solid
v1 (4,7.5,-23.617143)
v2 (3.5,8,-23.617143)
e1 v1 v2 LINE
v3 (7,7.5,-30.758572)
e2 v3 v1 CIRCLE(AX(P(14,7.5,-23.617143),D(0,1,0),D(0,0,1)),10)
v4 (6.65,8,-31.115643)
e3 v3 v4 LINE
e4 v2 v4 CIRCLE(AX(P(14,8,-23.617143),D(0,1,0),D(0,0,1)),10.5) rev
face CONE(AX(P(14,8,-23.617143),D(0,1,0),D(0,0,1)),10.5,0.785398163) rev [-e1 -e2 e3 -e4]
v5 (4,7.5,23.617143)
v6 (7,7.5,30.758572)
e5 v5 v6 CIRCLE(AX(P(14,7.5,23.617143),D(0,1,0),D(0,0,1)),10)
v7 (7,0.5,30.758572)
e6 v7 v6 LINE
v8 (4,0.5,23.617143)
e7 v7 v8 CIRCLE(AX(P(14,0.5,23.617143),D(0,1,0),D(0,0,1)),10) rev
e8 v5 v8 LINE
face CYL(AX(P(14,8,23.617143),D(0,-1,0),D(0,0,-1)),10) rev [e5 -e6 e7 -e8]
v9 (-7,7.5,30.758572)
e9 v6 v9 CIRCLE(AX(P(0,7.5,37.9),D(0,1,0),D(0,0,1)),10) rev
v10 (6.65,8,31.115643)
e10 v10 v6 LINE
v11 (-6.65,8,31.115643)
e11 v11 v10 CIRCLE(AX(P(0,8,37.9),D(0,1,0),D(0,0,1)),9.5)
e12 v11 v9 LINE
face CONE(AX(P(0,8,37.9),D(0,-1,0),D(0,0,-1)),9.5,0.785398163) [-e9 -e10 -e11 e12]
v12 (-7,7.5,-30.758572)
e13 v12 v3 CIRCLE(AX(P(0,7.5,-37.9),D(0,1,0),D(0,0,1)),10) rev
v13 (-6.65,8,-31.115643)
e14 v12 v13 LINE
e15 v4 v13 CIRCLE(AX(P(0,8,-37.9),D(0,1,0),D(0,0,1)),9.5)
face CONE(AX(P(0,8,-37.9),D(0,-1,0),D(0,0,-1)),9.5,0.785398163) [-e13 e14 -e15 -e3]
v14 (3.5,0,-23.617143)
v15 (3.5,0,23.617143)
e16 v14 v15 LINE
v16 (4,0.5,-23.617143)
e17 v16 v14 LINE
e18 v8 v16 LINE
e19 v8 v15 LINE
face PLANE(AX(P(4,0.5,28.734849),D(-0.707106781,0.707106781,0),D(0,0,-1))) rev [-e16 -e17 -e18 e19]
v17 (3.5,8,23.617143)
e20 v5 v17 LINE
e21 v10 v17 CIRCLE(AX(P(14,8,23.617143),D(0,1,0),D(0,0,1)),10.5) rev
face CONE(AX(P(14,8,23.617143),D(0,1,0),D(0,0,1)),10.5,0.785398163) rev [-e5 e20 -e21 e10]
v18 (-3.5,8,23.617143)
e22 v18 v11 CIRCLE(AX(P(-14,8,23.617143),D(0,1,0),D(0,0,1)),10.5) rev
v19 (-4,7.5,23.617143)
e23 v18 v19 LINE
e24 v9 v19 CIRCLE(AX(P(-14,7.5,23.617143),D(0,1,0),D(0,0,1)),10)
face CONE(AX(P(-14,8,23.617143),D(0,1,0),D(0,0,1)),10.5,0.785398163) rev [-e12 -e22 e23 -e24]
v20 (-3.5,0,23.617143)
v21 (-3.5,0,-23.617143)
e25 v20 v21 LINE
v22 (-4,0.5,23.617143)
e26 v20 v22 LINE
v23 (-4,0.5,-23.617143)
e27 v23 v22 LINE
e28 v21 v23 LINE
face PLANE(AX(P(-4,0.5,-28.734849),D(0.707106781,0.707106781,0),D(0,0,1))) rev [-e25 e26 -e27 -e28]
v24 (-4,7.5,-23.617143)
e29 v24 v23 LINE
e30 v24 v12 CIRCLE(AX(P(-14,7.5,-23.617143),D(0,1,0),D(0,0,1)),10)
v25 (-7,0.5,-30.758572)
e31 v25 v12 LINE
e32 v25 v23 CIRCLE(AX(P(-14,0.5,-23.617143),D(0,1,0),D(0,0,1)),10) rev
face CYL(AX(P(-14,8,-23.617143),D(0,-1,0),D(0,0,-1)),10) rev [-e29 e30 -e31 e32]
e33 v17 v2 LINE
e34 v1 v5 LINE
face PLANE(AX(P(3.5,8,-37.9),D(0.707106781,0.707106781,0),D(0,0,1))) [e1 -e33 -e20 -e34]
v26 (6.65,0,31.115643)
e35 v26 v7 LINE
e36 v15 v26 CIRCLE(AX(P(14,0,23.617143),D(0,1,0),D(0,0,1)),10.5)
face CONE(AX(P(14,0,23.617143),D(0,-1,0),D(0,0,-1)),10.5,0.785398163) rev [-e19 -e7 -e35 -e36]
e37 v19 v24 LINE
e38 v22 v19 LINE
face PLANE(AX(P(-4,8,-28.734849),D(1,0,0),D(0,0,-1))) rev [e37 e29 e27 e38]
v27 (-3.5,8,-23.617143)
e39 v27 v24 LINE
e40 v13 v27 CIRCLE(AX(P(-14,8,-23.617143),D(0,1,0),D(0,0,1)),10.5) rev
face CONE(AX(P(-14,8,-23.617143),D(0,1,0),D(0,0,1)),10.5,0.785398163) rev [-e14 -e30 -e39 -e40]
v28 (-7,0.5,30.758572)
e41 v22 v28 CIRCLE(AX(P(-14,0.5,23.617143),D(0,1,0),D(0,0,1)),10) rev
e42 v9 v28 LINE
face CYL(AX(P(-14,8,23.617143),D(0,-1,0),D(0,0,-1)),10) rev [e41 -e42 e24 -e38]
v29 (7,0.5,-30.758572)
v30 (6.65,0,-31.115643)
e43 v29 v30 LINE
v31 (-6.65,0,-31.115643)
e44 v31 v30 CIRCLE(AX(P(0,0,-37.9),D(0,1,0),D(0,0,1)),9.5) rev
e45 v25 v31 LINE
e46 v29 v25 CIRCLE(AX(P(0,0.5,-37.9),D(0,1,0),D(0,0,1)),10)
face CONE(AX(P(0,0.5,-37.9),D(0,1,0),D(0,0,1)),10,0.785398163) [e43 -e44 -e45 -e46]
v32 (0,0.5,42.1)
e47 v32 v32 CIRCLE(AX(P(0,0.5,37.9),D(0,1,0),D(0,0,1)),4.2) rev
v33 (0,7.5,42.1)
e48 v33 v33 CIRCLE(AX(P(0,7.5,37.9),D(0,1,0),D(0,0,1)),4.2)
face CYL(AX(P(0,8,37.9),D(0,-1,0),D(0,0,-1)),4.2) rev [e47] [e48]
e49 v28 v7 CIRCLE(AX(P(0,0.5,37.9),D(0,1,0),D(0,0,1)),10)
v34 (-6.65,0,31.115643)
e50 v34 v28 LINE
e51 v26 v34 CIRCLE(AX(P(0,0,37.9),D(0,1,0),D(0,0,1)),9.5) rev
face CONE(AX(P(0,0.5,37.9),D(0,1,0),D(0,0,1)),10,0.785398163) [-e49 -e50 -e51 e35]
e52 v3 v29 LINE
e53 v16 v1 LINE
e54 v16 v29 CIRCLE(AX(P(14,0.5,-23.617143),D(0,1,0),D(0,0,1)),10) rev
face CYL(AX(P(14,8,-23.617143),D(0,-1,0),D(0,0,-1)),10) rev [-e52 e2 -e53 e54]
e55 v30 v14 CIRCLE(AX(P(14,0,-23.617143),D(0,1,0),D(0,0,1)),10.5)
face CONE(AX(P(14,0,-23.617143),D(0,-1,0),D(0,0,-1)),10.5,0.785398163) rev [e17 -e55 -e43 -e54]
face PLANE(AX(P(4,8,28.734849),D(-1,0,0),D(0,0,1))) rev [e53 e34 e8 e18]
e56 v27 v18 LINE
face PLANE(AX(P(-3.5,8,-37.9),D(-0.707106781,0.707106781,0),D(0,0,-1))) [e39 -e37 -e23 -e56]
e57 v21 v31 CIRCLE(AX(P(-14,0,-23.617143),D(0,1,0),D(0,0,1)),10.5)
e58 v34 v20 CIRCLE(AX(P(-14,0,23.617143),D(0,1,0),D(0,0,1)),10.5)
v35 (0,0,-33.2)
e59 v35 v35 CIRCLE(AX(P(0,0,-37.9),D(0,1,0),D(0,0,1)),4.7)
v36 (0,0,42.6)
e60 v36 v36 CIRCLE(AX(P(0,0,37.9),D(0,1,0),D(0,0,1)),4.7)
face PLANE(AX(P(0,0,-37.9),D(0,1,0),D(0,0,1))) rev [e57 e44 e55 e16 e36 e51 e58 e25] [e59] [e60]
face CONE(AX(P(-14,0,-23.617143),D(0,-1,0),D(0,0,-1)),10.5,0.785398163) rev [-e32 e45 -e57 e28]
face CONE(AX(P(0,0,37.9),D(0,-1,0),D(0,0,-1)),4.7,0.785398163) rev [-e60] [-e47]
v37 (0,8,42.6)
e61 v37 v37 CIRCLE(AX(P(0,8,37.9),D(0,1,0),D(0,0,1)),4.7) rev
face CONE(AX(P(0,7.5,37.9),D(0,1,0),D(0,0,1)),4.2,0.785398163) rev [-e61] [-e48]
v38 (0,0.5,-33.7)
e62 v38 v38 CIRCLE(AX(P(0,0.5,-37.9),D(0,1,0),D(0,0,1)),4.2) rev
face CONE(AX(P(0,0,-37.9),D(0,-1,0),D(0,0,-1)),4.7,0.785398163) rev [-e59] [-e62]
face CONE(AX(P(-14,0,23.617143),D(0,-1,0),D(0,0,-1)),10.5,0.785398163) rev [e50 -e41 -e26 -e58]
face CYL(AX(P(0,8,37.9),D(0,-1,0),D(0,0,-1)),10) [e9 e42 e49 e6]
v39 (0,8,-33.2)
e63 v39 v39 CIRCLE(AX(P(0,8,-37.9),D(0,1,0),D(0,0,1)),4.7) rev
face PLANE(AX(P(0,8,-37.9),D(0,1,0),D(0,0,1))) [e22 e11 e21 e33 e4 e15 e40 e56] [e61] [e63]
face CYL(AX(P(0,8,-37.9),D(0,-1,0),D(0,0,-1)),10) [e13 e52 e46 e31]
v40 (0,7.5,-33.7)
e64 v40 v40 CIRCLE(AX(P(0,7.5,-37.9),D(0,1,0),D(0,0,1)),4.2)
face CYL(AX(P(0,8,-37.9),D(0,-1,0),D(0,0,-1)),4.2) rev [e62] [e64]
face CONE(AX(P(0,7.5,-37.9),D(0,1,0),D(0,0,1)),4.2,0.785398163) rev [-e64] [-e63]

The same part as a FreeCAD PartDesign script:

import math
import FreeCAD as App
import Part
import Sketcher
from FreeCAD import Vector
Q = App.Units.Quantity


def edges_at(feature, points):
    """Names of the edges that pass closest to the given points."""
    edges = feature.Shape.Edges
    near = lambda p: min(range(len(edges)), key=lambda i: edges[i].distToShape(Part.Vertex(*p))[0])
    return sorted({f"Edge{near(p) + 1}" for p in points})

doc = App.newDocument("Part")
body = doc.addObject("PartDesign::Body", "Body")

# Sketch on XZ plane
sketch1 = body.newObject("Sketcher::SketchObject", "Sketch")
sketch1.AttachmentSupport = (doc.getObject("XZ_Plane"), [""])
sketch1.MapMode = "FlatFace"
sketch1.addGeometry(Part.LineSegment(Vector(-4, -28.7, 0), Vector(-4, 28.7, 0)), False)
sketch1.addGeometry(Part.ArcOfCircle(Part.Circle(Vector(0, 37.9, 0), Vector(0, 0, 1), 10), math.radians(-66), math.radians(246)), False)
sketch1.addGeometry(Part.LineSegment(Vector(4, 28.7, 0), Vector(4, -28.7, 0)), False)
sketch1.addGeometry(Part.ArcOfCircle(Part.Circle(Vector(0, -37.9, 0), Vector(0, 0, 1), 10), math.radians(114), math.radians(426)), False)
sketch1.addGeometry(Part.Circle(Vector(0, 37.9, 0), Vector(0, 0, 1), 4.2), False)
sketch1.addGeometry(Part.Circle(Vector(0, -37.9, 0), Vector(0, 0, 1), 4.2), False)
sketch1.addConstraint(Sketcher.Constraint("Coincident", 0, 2, 1, 2))
sketch1.addConstraint(Sketcher.Constraint("Coincident", 1, 1, 2, 1))
sketch1.addConstraint(Sketcher.Constraint("Coincident", 2, 2, 3, 2))
sketch1.addConstraint(Sketcher.Constraint("Coincident", 3, 1, 0, 1))
sketch1.addConstraint(Sketcher.Constraint("Vertical", 0))
sketch1.addConstraint(Sketcher.Constraint("Vertical", 2))
sketch1.addConstraint(Sketcher.Constraint("Coincident", 4, 3, 1, 3))
sketch1.addConstraint(Sketcher.Constraint("Coincident", 5, 3, 3, 3))
sketch1.addConstraint(Sketcher.Constraint("Equal", 1, 3))
sketch1.addConstraint(Sketcher.Constraint("Equal", 4, 5))
sketch1.addConstraint(Sketcher.Constraint("Symmetric", 1, 3, 3, 3, -1, 1))
sketch1.addConstraint(Sketcher.Constraint("Symmetric", 0, 2, 1, 1, -2))
sketch1.addConstraint(Sketcher.Constraint("Radius", 1, Q("10 mm")))
sketch1.addConstraint(Sketcher.Constraint("Diameter", 4, Q("8.4 mm")))
sketch1.addConstraint(Sketcher.Constraint("DistanceX", 0, 2, -1, 1, Q("4 mm")))
sketch1.addConstraint(Sketcher.Constraint("DistanceY", -1, 1, 1, 3, Q("37.9 mm")))
pad1 = body.newObject("PartDesign::Pad", "Pad")
pad1.Profile = sketch1
pad1.Length = 8
pad1.Reversed = True
doc.recompute()

fillet = body.newObject("PartDesign::Fillet", "Fillet")
fillet.Base = (pad1, edges_at(pad1, [
    (4, 4, -28.735),
    (4, 4, 28.735),
    (-4, 4, 28.735),
    (-4, 4, -28.735),
]))
fillet.Radius = 10
doc.recompute()

chamfer = body.newObject("PartDesign::Chamfer", "Chamfer")
chamfer.Base = (fillet, edges_at(fillet, [
    (-4.2, 0, -37.9),
    (-4.2, 8, -37.9),
    (-4.2, 0, 37.9),
    (-4.2, 8, 37.9),
    (4, 0, 0),
    (4, 8, 0),
    (0, 0, 47.9),
    (0, 8, 47.9),
    (0, 0, -47.9),
    (0, 8, -47.9),
    (-4, 0, 0),
    (-4, 8, 0),
    (4.78, 0, 27.49),
    (4.78, 8, 27.49),
    (4.78, 0, -27.49),
    (4.78, 8, -27.49),
    (-4.78, 0, -27.49),
    (-4.78, 8, -27.49),
    (-4.78, 0, 27.49),
    (-4.78, 8, 27.49),
]))
chamfer.Size = 0.5

doc.recompute()
